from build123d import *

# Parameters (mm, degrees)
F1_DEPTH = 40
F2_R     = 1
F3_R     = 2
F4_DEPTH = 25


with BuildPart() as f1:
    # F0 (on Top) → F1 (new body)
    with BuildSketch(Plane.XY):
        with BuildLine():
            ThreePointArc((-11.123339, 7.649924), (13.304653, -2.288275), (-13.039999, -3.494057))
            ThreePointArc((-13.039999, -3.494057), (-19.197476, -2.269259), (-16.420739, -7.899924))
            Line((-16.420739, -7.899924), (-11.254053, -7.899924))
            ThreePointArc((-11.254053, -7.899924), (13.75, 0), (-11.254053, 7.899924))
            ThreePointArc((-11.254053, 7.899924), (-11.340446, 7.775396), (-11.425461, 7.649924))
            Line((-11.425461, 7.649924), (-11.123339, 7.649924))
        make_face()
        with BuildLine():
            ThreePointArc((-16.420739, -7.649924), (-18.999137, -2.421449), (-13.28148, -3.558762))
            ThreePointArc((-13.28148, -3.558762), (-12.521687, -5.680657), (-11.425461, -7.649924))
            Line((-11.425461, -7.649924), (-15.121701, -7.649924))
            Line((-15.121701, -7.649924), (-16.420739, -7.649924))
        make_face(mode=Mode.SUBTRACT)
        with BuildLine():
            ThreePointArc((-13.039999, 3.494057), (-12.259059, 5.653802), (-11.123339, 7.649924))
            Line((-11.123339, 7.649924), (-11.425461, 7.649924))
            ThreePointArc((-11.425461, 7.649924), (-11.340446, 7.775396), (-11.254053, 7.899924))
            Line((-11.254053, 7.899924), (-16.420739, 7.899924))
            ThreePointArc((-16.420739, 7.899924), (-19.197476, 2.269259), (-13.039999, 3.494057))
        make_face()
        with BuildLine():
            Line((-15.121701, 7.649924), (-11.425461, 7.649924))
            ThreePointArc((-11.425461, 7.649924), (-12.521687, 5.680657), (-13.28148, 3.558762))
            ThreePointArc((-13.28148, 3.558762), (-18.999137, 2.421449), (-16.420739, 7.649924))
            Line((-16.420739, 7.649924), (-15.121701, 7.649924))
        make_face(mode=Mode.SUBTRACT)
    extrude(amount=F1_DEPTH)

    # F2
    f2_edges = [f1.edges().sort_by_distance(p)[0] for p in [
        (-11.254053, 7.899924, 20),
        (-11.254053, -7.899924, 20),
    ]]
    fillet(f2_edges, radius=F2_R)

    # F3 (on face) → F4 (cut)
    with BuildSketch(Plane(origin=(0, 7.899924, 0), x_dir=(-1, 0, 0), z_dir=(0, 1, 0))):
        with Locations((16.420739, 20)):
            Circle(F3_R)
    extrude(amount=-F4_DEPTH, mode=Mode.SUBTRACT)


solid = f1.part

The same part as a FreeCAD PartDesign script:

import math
import FreeCAD as App
import Part
import Sketcher
Q = App.Units.Quantity


def edges_at(feature, points):
    """Names of the edges that pass closest to the given points."""
    edges = feature.Shape.Edges
    near = lambda p: min(range(len(edges)), key=lambda i: edges[i].distToShape(Part.Vertex(*p))[0])
    return sorted({f"Edge{near(p) + 1}" for p in points})

doc = App.newDocument("Part")
body = doc.addObject("PartDesign::Body", "Body")

# Sketch on XY plane
sketch1 = doc.addObject("Sketcher::SketchObject", "Sketch")
body.addObject(sketch1)
sketch1.AttachmentSupport = (doc.XY_Plane, [""])
sketch1.MapMode = "FlatFace"
sketch1.addGeometry([
    Part.ArcOfCircle(Part.Circle(App.Vector(0, 0, 0), App.Vector(0, 0, 1), 13.5), math.radians(-165), math.radians(145)),  # 0
    Part.ArcOfCircle(Part.Circle(App.Vector(-16.4, -4.4, 0), App.Vector(0, 0, 1), 3.5), math.radians(15), math.radians(270)),  # 1
    Part.LineSegment(App.Vector(-16.4, -7.9, 0), App.Vector(-11.3, -7.9, 0)),  # 2
    Part.ArcOfCircle(Part.Circle(App.Vector(0, 0, 0), App.Vector(0, 0, 1), 13.8), math.radians(-145), math.radians(145)),  # 3
    Part.LineSegment(App.Vector(-11.3, 7.9, 0), App.Vector(-16.4, 7.9, 0)),  # 4
    Part.ArcOfCircle(Part.Circle(App.Vector(-16.4, 4.4, 0), App.Vector(0, 0, 1), 3.5), math.radians(90), math.radians(345)),  # 5
    Part.ArcOfCircle(Part.Circle(App.Vector(0, 0, 0), App.Vector(0, 0, 1), 13.5), math.radians(145.48), math.radians(165)),  # 6
    Part.LineSegment(App.Vector(-11.4, -7.6, 0), App.Vector(-16.4, -7.6, 0)),  # 7
    Part.ArcOfCircle(Part.Circle(App.Vector(-16.4, -4.4, 0), App.Vector(0, 0, 1), 3.3), math.radians(15), math.radians(270)),  # 8
    Part.ArcOfCircle(Part.Circle(App.Vector(0, 0, 0), App.Vector(0, 0, 1), 13.7), math.radians(-165), math.radians(-146.2)),  # 9
    Part.LineSegment(App.Vector(-16.4, 7.6, 0), App.Vector(-11.4, 7.6, 0)),  # 10
    Part.ArcOfCircle(Part.Circle(App.Vector(0, 0, 0), App.Vector(0, 0, 1), 13.7), math.radians(146.2), math.radians(165)),  # 11
    Part.ArcOfCircle(Part.Circle(App.Vector(-16.4, 4.4, 0), App.Vector(0, 0, 1), 3.3), math.radians(90), math.radians(345)),  # 12
], False)
sketch1.addConstraint([
    Sketcher.Constraint("Tangent", 0, 1, 1, 1),
    Sketcher.Constraint("Tangent", 1, 2, 2, 1),
    Sketcher.Constraint("Coincident", 2, 2, 3, 1),
    Sketcher.Constraint("Coincident", 3, 2, 4, 1),
    Sketcher.Constraint("Tangent", 4, 2, 5, 1),
    Sketcher.Constraint("Tangent", 5, 2, 6, 2),
    Sketcher.Constraint("Tangent", 6, 1, 0, 2),
    Sketcher.Constraint("Tangent", 7, 2, 8, 2),
    Sketcher.Constraint("Tangent", 8, 1, 9, 1),
    Sketcher.Constraint("Coincident", 9, 2, 7, 1),
    Sketcher.Constraint("Coincident", 10, 2, 11, 1),
    Sketcher.Constraint("Tangent", 11, 2, 12, 2),
    Sketcher.Constraint("Tangent", 12, 1, 10, 1),
    Sketcher.Constraint("Horizontal", 2),
    Sketcher.Constraint("Horizontal", 4),
    Sketcher.Constraint("Horizontal", 7),
    Sketcher.Constraint("Horizontal", 10),
    Sketcher.Constraint("Coincident", 0, 3, -1, 1),
    Sketcher.Constraint("Coincident", 3, 3, -1, 1),
    Sketcher.Constraint("Coincident", 8, 3, 1, 3),
    Sketcher.Constraint("Coincident", 12, 3, 5, 3),
    Sketcher.Constraint("Equal", 1, 5),
    Sketcher.Constraint("Equal", 9, 11),
    Sketcher.Constraint("Equal", 8, 12),
    Sketcher.Constraint("Symmetric", 1, 3, 5, 3, -1),
    Sketcher.Constraint("Horizontal", 6, 1, 10, 2),
    Sketcher.Constraint("Vertical", 9, 3, 11, 3),
    Sketcher.Constraint("Radius", 0, Q("13.5 mm")),
    Sketcher.Constraint("Radius", 1, Q("3.5 mm")),
    Sketcher.Constraint("Radius", 3, Q("13.75 mm")),
    Sketcher.Constraint("Radius", 8, Q("3.25 mm")),
    Sketcher.Constraint("DistanceX", 0, 1, -1, 1, Q("13.039999 mm")),
    Sketcher.Constraint("Radius", 9, Q("13.749967 mm")),
    Sketcher.Constraint("DistanceX", 7, 2, 7, 1, Q("4.995278 mm")),
])
pad1 = doc.addObject("PartDesign::Pad", "Pad")
body.addObject(pad1)
pad1.Profile = sketch1
pad1.Length = 40
doc.recompute()

fillet = doc.addObject("PartDesign::Fillet", "Fillet")
body.addObject(fillet)
fillet.Base = (pad1, edges_at(pad1, [(-11.254, 7.9, 20), (-11.254, -7.9, 20)]))
fillet.Radius = 1

# Sketch on XZ plane
sketch2 = doc.addObject("Sketcher::SketchObject", "Sketch001")
body.addObject(sketch2)
sketch2.AttachmentSupport = (doc.XZ_Plane, [""])
sketch2.MapMode = "FlatFace"
sketch2.AttachmentOffset = App.Placement(App.Vector(0, 0, -7.899924), App.Rotation())
sketch2.addGeometry(Part.Circle(App.Vector(-16.4, 20, 0), App.Vector(0, 0, 1), 2), False)
sketch2.addConstraint([
    Sketcher.Constraint("Diameter", 0, Q("4 mm")),
    Sketcher.Constraint("DistanceY", -1, 1, 0, 3, Q("20 mm")),
    Sketcher.Constraint("DistanceX", 0, 3, -1, 1, Q("16.420739 mm")),
])
pocket1 = doc.addObject("PartDesign::Pocket", "Pocket")
body.addObject(pocket1)
pocket1.Profile = sketch2
pocket1.Length = 25
pocket1.Reversed = True

doc.recompute()
